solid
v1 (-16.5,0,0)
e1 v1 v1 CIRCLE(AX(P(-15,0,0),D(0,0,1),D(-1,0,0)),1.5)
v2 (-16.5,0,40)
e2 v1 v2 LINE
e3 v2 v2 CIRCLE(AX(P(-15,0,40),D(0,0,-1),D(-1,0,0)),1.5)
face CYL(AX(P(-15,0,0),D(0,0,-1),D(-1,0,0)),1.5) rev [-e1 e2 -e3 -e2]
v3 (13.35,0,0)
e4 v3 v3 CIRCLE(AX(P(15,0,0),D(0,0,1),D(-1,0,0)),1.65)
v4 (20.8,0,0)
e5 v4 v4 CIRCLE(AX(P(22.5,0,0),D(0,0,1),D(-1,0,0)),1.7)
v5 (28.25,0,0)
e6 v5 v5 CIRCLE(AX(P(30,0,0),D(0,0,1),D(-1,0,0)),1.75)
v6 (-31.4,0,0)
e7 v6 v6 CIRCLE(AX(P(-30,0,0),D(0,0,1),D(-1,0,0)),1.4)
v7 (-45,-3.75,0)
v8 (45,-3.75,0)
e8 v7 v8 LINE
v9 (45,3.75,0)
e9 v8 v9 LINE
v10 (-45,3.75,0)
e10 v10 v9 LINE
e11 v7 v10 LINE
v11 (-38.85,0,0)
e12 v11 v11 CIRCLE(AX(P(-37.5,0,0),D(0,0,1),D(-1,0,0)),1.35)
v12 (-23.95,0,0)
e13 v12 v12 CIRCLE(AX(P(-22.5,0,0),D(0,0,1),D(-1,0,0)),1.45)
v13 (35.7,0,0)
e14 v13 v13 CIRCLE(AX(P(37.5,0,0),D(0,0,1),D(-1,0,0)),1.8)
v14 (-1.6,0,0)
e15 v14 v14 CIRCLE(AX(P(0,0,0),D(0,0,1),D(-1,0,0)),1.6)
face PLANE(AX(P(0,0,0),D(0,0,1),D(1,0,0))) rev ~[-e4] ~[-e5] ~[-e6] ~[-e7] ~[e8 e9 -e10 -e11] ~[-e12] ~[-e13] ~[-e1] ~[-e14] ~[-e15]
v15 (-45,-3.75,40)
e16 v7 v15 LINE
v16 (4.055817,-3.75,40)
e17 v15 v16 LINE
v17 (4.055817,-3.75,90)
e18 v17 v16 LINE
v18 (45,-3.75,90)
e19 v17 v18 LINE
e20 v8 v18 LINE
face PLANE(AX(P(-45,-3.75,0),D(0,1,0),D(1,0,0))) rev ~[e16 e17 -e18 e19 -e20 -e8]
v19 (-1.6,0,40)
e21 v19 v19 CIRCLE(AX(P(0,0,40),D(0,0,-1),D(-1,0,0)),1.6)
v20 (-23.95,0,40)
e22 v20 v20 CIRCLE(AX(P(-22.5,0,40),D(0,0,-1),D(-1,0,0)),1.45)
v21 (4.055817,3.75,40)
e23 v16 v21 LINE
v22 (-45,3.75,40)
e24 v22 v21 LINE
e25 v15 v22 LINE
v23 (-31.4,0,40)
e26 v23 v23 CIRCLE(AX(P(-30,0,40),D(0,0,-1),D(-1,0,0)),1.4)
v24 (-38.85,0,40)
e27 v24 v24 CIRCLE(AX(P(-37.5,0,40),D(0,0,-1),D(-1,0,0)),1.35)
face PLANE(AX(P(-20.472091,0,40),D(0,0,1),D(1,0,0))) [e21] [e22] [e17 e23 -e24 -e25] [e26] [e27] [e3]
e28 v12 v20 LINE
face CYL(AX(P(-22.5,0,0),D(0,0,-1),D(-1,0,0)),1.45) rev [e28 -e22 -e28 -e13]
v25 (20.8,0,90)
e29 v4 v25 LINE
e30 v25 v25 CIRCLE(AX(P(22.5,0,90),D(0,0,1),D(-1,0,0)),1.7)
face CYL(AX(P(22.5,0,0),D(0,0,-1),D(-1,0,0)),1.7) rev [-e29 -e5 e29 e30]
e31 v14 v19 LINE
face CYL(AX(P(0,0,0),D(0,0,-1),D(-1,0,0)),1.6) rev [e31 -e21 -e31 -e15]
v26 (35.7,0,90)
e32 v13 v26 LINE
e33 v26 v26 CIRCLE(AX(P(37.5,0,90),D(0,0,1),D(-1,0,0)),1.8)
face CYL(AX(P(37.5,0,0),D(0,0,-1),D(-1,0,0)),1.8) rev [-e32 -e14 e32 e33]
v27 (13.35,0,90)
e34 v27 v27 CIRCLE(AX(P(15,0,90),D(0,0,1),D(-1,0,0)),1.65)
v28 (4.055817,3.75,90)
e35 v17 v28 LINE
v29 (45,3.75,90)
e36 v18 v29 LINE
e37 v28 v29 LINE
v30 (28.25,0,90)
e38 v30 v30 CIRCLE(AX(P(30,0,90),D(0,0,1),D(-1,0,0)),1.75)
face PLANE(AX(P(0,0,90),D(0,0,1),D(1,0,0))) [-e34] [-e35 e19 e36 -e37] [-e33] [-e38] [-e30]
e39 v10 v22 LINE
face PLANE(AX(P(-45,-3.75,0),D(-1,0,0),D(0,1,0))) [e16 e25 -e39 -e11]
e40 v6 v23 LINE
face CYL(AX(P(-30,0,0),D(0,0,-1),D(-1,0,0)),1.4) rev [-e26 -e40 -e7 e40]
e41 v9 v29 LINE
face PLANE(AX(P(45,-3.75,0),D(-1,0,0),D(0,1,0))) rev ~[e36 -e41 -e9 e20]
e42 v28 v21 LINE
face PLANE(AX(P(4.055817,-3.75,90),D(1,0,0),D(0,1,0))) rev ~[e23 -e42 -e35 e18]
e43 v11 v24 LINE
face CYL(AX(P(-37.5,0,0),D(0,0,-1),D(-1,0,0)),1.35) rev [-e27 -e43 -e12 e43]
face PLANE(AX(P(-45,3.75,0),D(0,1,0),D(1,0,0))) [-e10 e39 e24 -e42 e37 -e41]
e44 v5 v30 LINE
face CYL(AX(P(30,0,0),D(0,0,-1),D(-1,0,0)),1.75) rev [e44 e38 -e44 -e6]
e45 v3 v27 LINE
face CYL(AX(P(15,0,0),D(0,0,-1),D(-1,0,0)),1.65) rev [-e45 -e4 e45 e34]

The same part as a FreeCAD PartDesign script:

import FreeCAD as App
import Part
import Sketcher

V = App.Vector

doc = App.newDocument("Part")
body = doc.addObject("PartDesign::Body", "Body")

# Sketch on XY plane
sketch1 = body.newObject("Sketcher::SketchObject", "Sketch")
sketch1.AttachmentSupport = (doc.getObject("XY_Plane"), [""])
sketch1.MapMode = "FlatFace"
sketch1.addGeometry([
    Part.LineSegment(V(-45, 3.8, 0), V(-45, -3.8, 0)),  # 0
    Part.LineSegment(V(-45, -3.8, 0), V(45, -3.8, 0)),  # 1
    Part.LineSegment(V(45, -3.8, 0), V(45, 3.8, 0)),  # 2
    Part.LineSegment(V(45, 3.8, 0), V(-45, 3.8, 0)),  # 3
    Part.Circle(V(-37.5, 0, 0), V(0, 0, 1), 1.4),  # 4
    Part.Circle(V(-30, 0, 0), V(0, 0, 1), 1.4),  # 5
    Part.Circle(V(-22.5, 0, 0), V(0, 0, 1), 1.4),  # 6
    Part.Circle(V(-15, 0, 0), V(0, 0, 1), 1.5),  # 7
    Part.Circle(V(0, 0, 0), V(0, 0, 1), 1.6),  # 8
    Part.Circle(V(15, 0, 0), V(0, 0, 1), 1.6),  # 9
    Part.Circle(V(22.5, 0, 0), V(0, 0, 1), 1.7),  # 10
    Part.Circle(V(30, 0, 0), V(0, 0, 1), 1.8),  # 11
    Part.Circle(V(37.5, 0, 0), V(0, 0, 1), 1.8),  # 12
], False)
sketch1.addConstraint([
    Sketcher.Constraint("Coincident", 0, 2, 1, 1),
    Sketcher.Constraint("Coincident", 1, 2, 2, 1),
    Sketcher.Constraint("Coincident", 2, 2, 3, 1),
    Sketcher.Constraint("Coincident", 3, 2, 0, 1),
    Sketcher.Constraint("Vertical", 0),
    Sketcher.Constraint("Horizontal", 1),
    Sketcher.Constraint("Vertical", 2),
    Sketcher.Constraint("Horizontal", 3),
    Sketcher.Constraint("Coincident", 8, 3, -1, 1),
    Sketcher.Constraint("Symmetric", 7, 3, 9, 3, -1, 1),
    Sketcher.Constraint("Symmetric", 6, 3, 10, 3, -1, 1),
    Sketcher.Constraint("Symmetric", 5, 3, 11, 3, -1, 1),
    Sketcher.Constraint("Symmetric", 4, 3, 12, 3, -1, 1),
    Sketcher.Constraint("Symmetric", 0, 2, 2, 2, -1, 1),
    Sketcher.Constraint("PointOnObject", 4, 3, -1),
    Sketcher.Constraint("PointOnObject", 5, 3, -1),
    Sketcher.Constraint("PointOnObject", 6, 3, -1),
    Sketcher.Constraint("PointOnObject", 7, 3, -1),
    Sketcher.Constraint("Diameter", 7, 3.0),
    Sketcher.Constraint("Diameter", 4, 2.7),
    Sketcher.Constraint("Diameter", 5, 2.8),
    Sketcher.Constraint("Diameter", 6, 2.9),
    Sketcher.Constraint("Diameter", 8, 3.2),
    Sketcher.Constraint("Diameter", 9, 3.3),
    Sketcher.Constraint("Diameter", 10, 3.4),
    Sketcher.Constraint("Diameter", 11, 3.5),
    Sketcher.Constraint("Diameter", 12, 3.6),
    Sketcher.Constraint("DistanceX", 1, 1, 1, 2, 90.0),
    Sketcher.Constraint("DistanceY", 0, 2, 0, 1, 7.5),
    Sketcher.Constraint("DistanceX", 5, 3, -1, 1, 30.0),
    Sketcher.Constraint("DistanceX", 7, 3, -1, 1, 15.0),
    Sketcher.Constraint("DistanceX", 4, 3, 6, 3, 15.0),
    Sketcher.Constraint("DistanceX", 6, 3, 10, 3, 45.0),
])
pad1 = body.newObject("PartDesign::Pad", "Pad")
pad1.Profile = sketch1
pad1.Length = 90

# Sketch on XY plane
sketch2 = body.newObject("Sketcher::SketchObject", "Sketch001")
sketch2.AttachmentSupport = (doc.getObject("XY_Plane"), [""])
sketch2.MapMode = "FlatFace"
sketch2.AttachmentOffset = App.Placement(V(0, 0, 90), App.Rotation())
sketch2.addGeometry([
    Part.LineSegment(V(-45, 4, 0), V(-45, -4, 0)),
    Part.LineSegment(V(-45, -4, 0), V(4, -4, 0)),
    Part.LineSegment(V(4, -4, 0), V(4, 4, 0)),
    Part.LineSegment(V(4, 4, 0), V(-45, 4, 0)),
], False)
sketch2.addConstraint([
    Sketcher.Constraint("Coincident", 0, 2, 1, 1),
    Sketcher.Constraint("Coincident", 1, 2, 2, 1),
    Sketcher.Constraint("Coincident", 2, 2, 3, 1),
    Sketcher.Constraint("Coincident", 3, 2, 0, 1),
    Sketcher.Constraint("Vertical", 0),
    Sketcher.Constraint("Horizontal", 1),
    Sketcher.Constraint("Vertical", 2),
    Sketcher.Constraint("Horizontal", 3),
    Sketcher.Constraint("DistanceY", 0, 2, 0, 1, 7.5),
    Sketcher.Constraint("DistanceX", 0, 2, -1, 1, 45.0),
    Sketcher.Constraint("DistanceY", 0, 2, -1, 1, 3.75),
    Sketcher.Constraint("DistanceX", 1, 1, 1, 2, 49.055817),
])
pocket1 = body.newObject("PartDesign::Pocket", "Pocket")
pocket1.Profile = sketch2
pocket1.Length = 50

doc.recompute()
